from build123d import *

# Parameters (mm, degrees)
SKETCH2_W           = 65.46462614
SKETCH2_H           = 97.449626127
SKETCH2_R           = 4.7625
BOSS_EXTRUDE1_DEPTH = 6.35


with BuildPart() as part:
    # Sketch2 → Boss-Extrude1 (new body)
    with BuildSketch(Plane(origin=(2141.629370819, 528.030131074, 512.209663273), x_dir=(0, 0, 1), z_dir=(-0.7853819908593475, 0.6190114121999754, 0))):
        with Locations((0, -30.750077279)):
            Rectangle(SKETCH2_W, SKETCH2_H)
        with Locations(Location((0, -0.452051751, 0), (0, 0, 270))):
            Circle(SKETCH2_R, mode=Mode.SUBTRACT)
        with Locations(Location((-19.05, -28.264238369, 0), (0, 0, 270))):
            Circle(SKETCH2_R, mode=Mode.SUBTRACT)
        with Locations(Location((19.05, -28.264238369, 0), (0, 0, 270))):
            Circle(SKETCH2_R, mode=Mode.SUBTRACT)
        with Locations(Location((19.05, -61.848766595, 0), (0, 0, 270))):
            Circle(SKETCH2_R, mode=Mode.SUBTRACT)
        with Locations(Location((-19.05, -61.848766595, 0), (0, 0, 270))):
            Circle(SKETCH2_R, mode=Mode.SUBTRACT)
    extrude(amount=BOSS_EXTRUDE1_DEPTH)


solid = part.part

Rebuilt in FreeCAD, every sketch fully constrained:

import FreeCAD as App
import Part
import Sketcher
from FreeCAD import Vector
Q = App.Units.Quantity


def add_polygon(sketch, points):
    """Adds a closed chain of lines whose ends are joined by coincident constraints."""
    first, n = sketch.GeometryCount, len(points)
    for a, b in zip(points, points[1:] + points[:1]):
        sketch.addGeometry(Part.LineSegment(App.Vector(*a, 0), App.Vector(*b, 0)), False)
    for i in range(n):
        sketch.addConstraint(Sketcher.Constraint("Coincident", first + i, 2, first + (i + 1) % n, 1))

doc = App.newDocument("Part")
body = doc.addObject("PartDesign::Body", "Body")

sketch1 = doc.addObject("Sketcher::SketchObject", "Sketch")
body.addObject(sketch1)
sketch1.Placement = App.Placement(Vector(2141.629371, 528.030131, 512.209663), App.Rotation(Vector(0, 0, 1), Vector(0.619011412, 0.785381991, 0), Vector(-0.785381991, 0.619011412, 0), "ZXY"))
add_polygon(sketch1, [(-32.7, 18), (-32.7, -79.5), (32.7, -79.5), (32.7, 18)])
sketch1.addGeometry(Part.Circle(Vector(-19.1, -61.8, 0), Vector(0, 0, 1), 4.8), False)
sketch1.addGeometry(Part.Circle(Vector(19.1, -61.8, 0), Vector(0, 0, 1), 4.8), False)
sketch1.addGeometry(Part.Circle(Vector(-19.1, -28.3, 0), Vector(0, 0, 1), 4.8), False)
sketch1.addGeometry(Part.Circle(Vector(19.1, -28.3, 0), Vector(0, 0, 1), 4.8), False)
sketch1.addGeometry(Part.Circle(Vector(0, -0.5, 0), Vector(0, 0, 1), 4.8), False)
sketch1.addConstraint([
    Sketcher.Constraint("Vertical", 0),
    Sketcher.Constraint("Horizontal", 1),
    Sketcher.Constraint("Vertical", 2),
    Sketcher.Constraint("Horizontal", 3),
    Sketcher.Constraint("Equal", 4, 5),
    Sketcher.Constraint("Equal", 5, 6),
    Sketcher.Constraint("Equal", 6, 7),
    Sketcher.Constraint("Equal", 7, 8),
    Sketcher.Constraint("Symmetric", 4, 3, 5, 3, -2),
    Sketcher.Constraint("Symmetric", 6, 3, 7, 3, -2),
    Sketcher.Constraint("PointOnObject", 8, 3, -2),
    Sketcher.Constraint("Vertical", 4, 3, 6, 3),
    Sketcher.Constraint("Diameter", 4, Q("0.375 in")),
    Sketcher.Constraint("DistanceX", 4, 3, 5, 3, Q("1.5 in")),
    Sketcher.Constraint("DistanceX", 1, 1, 1, 2, Q("65.464626 mm")),
    Sketcher.Constraint("DistanceY", 0, 2, 0, 1, Q("97.449626 mm")),
    Sketcher.Constraint("DistanceY", 6, 3, -1, 1, Q("28.264238 mm")),
    Sketcher.Constraint("DistanceY", 8, 3, -1, 1, Q("0.452052 mm")),
    Sketcher.Constraint("DistanceY", 0, 2, -1, 1, Q("79.47489 mm")),
    Sketcher.Constraint("DistanceY", 4, 3, 6, 3, Q("33.584528 mm")),
    Sketcher.Constraint("DistanceX", 0, 2, -1, 1, Q("32.732313 mm")),
])
pad1 = doc.addObject("PartDesign::Pad", "Pad")
body.addObject(pad1)
pad1.Profile = sketch1
pad1.Length = Q("0.25 in")

doc.recompute()
